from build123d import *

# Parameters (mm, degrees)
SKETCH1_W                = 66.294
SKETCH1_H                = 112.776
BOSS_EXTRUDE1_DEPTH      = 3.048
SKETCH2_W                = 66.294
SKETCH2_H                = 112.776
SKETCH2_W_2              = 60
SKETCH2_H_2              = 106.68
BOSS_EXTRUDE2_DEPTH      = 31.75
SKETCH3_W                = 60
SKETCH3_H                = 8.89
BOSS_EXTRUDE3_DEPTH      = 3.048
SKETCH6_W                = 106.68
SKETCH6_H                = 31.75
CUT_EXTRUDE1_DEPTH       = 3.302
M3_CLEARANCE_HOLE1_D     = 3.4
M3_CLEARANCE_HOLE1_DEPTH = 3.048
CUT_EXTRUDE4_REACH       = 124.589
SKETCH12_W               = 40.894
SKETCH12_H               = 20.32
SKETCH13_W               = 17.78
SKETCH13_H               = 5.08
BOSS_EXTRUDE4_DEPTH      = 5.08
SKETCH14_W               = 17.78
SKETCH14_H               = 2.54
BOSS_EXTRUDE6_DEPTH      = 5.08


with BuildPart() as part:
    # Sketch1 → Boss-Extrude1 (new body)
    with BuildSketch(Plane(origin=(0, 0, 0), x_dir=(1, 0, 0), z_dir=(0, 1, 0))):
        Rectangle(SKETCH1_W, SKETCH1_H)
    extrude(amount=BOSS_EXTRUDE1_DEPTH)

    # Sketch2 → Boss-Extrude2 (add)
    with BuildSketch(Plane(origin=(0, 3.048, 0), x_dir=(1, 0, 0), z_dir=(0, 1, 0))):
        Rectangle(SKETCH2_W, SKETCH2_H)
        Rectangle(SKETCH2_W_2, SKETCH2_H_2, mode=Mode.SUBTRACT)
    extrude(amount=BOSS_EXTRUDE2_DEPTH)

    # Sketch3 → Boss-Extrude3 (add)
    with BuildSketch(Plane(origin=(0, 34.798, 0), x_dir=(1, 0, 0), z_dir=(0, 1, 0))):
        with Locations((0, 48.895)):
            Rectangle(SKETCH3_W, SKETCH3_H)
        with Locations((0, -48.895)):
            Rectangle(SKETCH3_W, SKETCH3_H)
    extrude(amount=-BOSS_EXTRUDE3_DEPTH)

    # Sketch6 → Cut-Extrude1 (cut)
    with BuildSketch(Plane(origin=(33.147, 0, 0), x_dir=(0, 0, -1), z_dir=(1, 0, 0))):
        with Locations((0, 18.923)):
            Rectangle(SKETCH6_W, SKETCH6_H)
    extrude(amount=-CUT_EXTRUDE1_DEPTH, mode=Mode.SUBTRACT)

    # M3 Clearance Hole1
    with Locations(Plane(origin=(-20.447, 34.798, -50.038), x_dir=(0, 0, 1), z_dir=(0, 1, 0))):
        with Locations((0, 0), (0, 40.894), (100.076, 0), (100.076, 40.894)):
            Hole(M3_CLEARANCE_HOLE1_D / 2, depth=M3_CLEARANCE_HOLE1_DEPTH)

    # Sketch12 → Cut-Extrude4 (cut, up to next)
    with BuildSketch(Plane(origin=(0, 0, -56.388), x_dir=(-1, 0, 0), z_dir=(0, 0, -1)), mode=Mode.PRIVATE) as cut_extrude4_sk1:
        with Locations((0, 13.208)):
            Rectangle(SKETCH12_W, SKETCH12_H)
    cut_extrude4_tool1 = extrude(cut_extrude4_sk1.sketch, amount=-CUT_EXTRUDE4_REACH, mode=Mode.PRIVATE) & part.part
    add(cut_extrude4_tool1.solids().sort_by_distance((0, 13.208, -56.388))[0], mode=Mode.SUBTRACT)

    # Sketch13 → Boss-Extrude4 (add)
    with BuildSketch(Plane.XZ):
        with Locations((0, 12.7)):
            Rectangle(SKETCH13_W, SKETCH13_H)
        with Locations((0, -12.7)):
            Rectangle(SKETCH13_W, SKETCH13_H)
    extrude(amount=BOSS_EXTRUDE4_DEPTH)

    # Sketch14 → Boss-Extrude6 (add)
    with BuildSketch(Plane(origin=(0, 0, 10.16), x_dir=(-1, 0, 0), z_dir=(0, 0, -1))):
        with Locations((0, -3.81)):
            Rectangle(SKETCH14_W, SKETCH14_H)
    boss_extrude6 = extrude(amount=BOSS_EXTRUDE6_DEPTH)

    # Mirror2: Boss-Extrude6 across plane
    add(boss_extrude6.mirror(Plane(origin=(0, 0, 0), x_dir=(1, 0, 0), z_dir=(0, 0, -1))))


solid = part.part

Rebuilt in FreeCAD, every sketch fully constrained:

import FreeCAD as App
import Part
import Sketcher

V = App.Vector
Q = App.Units.Quantity


def add_polygon(sketch, points):
    """Adds a closed chain of lines whose ends are joined by coincident constraints."""
    first, n = sketch.GeometryCount, len(points)
    for a, b in zip(points, points[1:] + points[:1]):
        sketch.addGeometry(Part.LineSegment(App.Vector(*a, 0), App.Vector(*b, 0)), False)
    for i in range(n):
        sketch.addConstraint(Sketcher.Constraint("Coincident", first + i, 2, first + (i + 1) % n, 1))

doc = App.newDocument("Part")
body = doc.addObject("PartDesign::Body", "Body")

# Sketch on XZ plane
sketch1 = body.newObject("Sketcher::SketchObject", "Sketch")
sketch1.AttachmentSupport = (doc.getObject("XZ_Plane"), [""])
sketch1.MapMode = "FlatFace"
add_polygon(sketch1, [(-33, -56), (-33, 56), (33, 56), (33, -56)])  # lines 0-3
sketch1.addConstraint(Sketcher.Constraint("Vertical", 0))
sketch1.addConstraint(Sketcher.Constraint("Horizontal", 1))
sketch1.addConstraint(Sketcher.Constraint("Vertical", 2))
sketch1.addConstraint(Sketcher.Constraint("Horizontal", 3))
sketch1.addConstraint(Sketcher.Constraint("Symmetric", 0, 2, 2, 2, -1, 1))
sketch1.addConstraint(Sketcher.Constraint("DistanceX", 1, 1, 1, 2, Q("2.61 in")))
sketch1.addConstraint(Sketcher.Constraint("DistanceY", 0, 1, 0, 2, Q("4.44 in")))
pad1 = body.newObject("PartDesign::Pad", "Pad")
pad1.Profile = sketch1
pad1.Length = Q("0.12 in")
pad1.Reversed = True

# Sketch on XZ plane
sketch2 = body.newObject("Sketcher::SketchObject", "Sketch001")
sketch2.AttachmentSupport = (doc.getObject("XZ_Plane"), [""])
sketch2.MapMode = "FlatFace"
sketch2.AttachmentOffset = App.Placement(V(0, 0, -0.12 * 25.4), App.Rotation())
add_polygon(sketch2, [(-33, -56), (-33, 56), (33, 56), (33, -56)])  # lines 0-3
add_polygon(sketch2, [(30, 53), (-30, 53), (-30, -53), (30, -53)])  # lines 4-7
sketch2.addConstraint(Sketcher.Constraint("Vertical", 0))
sketch2.addConstraint(Sketcher.Constraint("Horizontal", 1))
sketch2.addConstraint(Sketcher.Constraint("Vertical", 2))
sketch2.addConstraint(Sketcher.Constraint("Horizontal", 3))
sketch2.addConstraint(Sketcher.Constraint("Horizontal", 4))
sketch2.addConstraint(Sketcher.Constraint("Vertical", 5))
sketch2.addConstraint(Sketcher.Constraint("Horizontal", 6))
sketch2.addConstraint(Sketcher.Constraint("Vertical", 7))
sketch2.addConstraint(Sketcher.Constraint("Symmetric", 0, 2, 2, 2, -1, 1))
sketch2.addConstraint(Sketcher.Constraint("Symmetric", 4, 2, 6, 2, -1, 1))
sketch2.addConstraint(Sketcher.Constraint("DistanceY", 5, 2, 5, 1, Q("4.2 in")))
sketch2.addConstraint(Sketcher.Constraint("DistanceX", 1, 1, 1, 2, Q("2.61 in")))
sketch2.addConstraint(Sketcher.Constraint("DistanceY", 0, 1, 0, 2, Q("4.44 in")))
sketch2.addConstraint(Sketcher.Constraint("DistanceX", 4, 2, 4, 1, Q("60 mm")))
pad2 = body.newObject("PartDesign::Pad", "Pad001")
pad2.Profile = sketch2
pad2.Length = Q("1.25 in")
pad2.Reversed = True

# Sketch on XZ plane
sketch3 = body.newObject("Sketcher::SketchObject", "Sketch002")
sketch3.AttachmentSupport = (doc.getObject("XZ_Plane"), [""])
sketch3.MapMode = "FlatFace"
sketch3.AttachmentOffset = App.Placement(V(0, 0, -1.37 * 25.4), App.Rotation())
add_polygon(sketch3, [(-30, -53), (-30, -44), (30, -44), (30, -53)])  # lines 0-3
add_polygon(sketch3, [(-30, 44), (-30, 53), (30, 53), (30, 44)])  # lines 4-7
sketch3.addConstraint(Sketcher.Constraint("Vertical", 0))
sketch3.addConstraint(Sketcher.Constraint("Horizontal", 1))
sketch3.addConstraint(Sketcher.Constraint("Vertical", 2))
sketch3.addConstraint(Sketcher.Constraint("Horizontal", 3))
sketch3.addConstraint(Sketcher.Constraint("Vertical", 4))
sketch3.addConstraint(Sketcher.Constraint("Horizontal", 5))
sketch3.addConstraint(Sketcher.Constraint("Vertical", 6))
sketch3.addConstraint(Sketcher.Constraint("Horizontal", 7))
sketch3.addConstraint(Sketcher.Constraint("Symmetric", 2, 2, 4, 2, -1, 1))
sketch3.addConstraint(Sketcher.Constraint("Symmetric", 0, 2, 6, 2, -1, 1))
sketch3.addConstraint(Sketcher.Constraint("Vertical", 3, 2, 4, 2))
sketch3.addConstraint(Sketcher.Constraint("DistanceY", 0, 1, 0, 2, Q("0.35 in")))
sketch3.addConstraint(Sketcher.Constraint("DistanceY", 2, 2, -1, 1, Q("2.1 in")))
sketch3.addConstraint(Sketcher.Constraint("DistanceX", 1, 1, 1, 2, Q("60 mm")))
pad3 = body.newObject("PartDesign::Pad", "Pad002")
pad3.Profile = sketch3
pad3.Length = Q("0.12 in")

# Sketch on YZ plane
sketch4 = body.newObject("Sketcher::SketchObject", "Sketch003")
sketch4.AttachmentSupport = (doc.getObject("YZ_Plane"), [""])
sketch4.MapMode = "FlatFace"
sketch4.AttachmentOffset = App.Placement(V(0, 0, 1.305 * 25.4), App.Rotation())
add_polygon(sketch4, [(35, 53), (3, 53), (3, -53), (35, -53)])  # lines 0-3
sketch4.addConstraint(Sketcher.Constraint("Horizontal", 0))
sketch4.addConstraint(Sketcher.Constraint("Vertical", 1))
sketch4.addConstraint(Sketcher.Constraint("Horizontal", 2))
sketch4.addConstraint(Sketcher.Constraint("Vertical", 3))
sketch4.addConstraint(Sketcher.Constraint("DistanceY", 1, 2, 1, 1, Q("4.2 in")))
sketch4.addConstraint(Sketcher.Constraint("DistanceX", 0, 2, 0, 1, Q("1.25 in")))
sketch4.addConstraint(Sketcher.Constraint("DistanceY", -1, 1, 0, 2, Q("2.1 in")))
sketch4.addConstraint(Sketcher.Constraint("DistanceX", -1, 1, 0, 2, Q("0.12 in")))
pocket1 = body.newObject("PartDesign::Pocket", "Pocket")
pocket1.Profile = sketch4
pocket1.Length = Q("0.13 in")

# Sketch on XZ plane
sketch5 = body.newObject("Sketcher::SketchObject", "Sketch004")
sketch5.AttachmentSupport = (doc.getObject("XZ_Plane"), [""])
sketch5.MapMode = "FlatFace"
sketch5.AttachmentOffset = App.Placement(V(0, 0, -1.37 * 25.4), App.Rotation())
sketch5.addGeometry(Part.Circle(V(-20.4, -50, 0), V(0, 0, 1), 1.7), False)
sketch5.addGeometry(Part.Circle(V(20.4, -50, 0), V(0, 0, 1), 1.7), False)
sketch5.addGeometry(Part.Circle(V(-20.4, 50, 0), V(0, 0, 1), 1.7), False)
sketch5.addGeometry(Part.Circle(V(20.4, 50, 0), V(0, 0, 1), 1.7), False)
sketch5.addConstraint(Sketcher.Constraint("Equal", 0, 1))
sketch5.addConstraint(Sketcher.Constraint("Equal", 1, 2))
sketch5.addConstraint(Sketcher.Constraint("Equal", 2, 3))
sketch5.addConstraint(Sketcher.Constraint("Symmetric", 1, 3, 2, 3, -1, 1))
sketch5.addConstraint(Sketcher.Constraint("Symmetric", 0, 3, 3, 3, -1, 1))
sketch5.addConstraint(Sketcher.Constraint("Symmetric", 0, 3, 1, 3, -2))
sketch5.addConstraint(Sketcher.Constraint("Diameter", 0, Q("3.4 mm")))
sketch5.addConstraint(Sketcher.Constraint("DistanceY", 0, 3, -1, 1, Q("1.97 in")))
sketch5.addConstraint(Sketcher.Constraint("DistanceX", 0, 3, 1, 3, Q("1.61 in")))
doc.recompute()
hole = body.newObject("PartDesign::Hole", "Hole")
hole.Profile = sketch5
hole.ThreadType = "None"
hole.Diameter = 3.4
hole.DepthType = "Dimension"
hole.Depth = Q("0.12 in")
hole.DrillPoint = "Flat"
hole.Reversed = True

# Sketch on XY plane
sketch6 = body.newObject("Sketcher::SketchObject", "Sketch005")
sketch6.AttachmentSupport = (doc.getObject("XY_Plane"), [""])
sketch6.MapMode = "FlatFace"
sketch6.AttachmentOffset = App.Placement(V(0, 0, -2.22 * 25.4), App.Rotation())
add_polygon(sketch6, [(20, 23), (20, 3), (-20, 3), (-20, 23)])  # lines 0-3
sketch6.addConstraint(Sketcher.Constraint("Vertical", 0))
sketch6.addConstraint(Sketcher.Constraint("Horizontal", 1))
sketch6.addConstraint(Sketcher.Constraint("Vertical", 2))
sketch6.addConstraint(Sketcher.Constraint("Horizontal", 3))
sketch6.addConstraint(Sketcher.Constraint("DistanceY", 0, 2, 0, 1, Q("0.8 in")))
sketch6.addConstraint(Sketcher.Constraint("DistanceX", 1, 2, 1, 1, Q("1.61 in")))
sketch6.addConstraint(Sketcher.Constraint("DistanceY", -1, 1, 0, 2, Q("0.12 in")))
sketch6.addConstraint(Sketcher.Constraint("DistanceX", -1, 1, 0, 2, Q("0.805 in")))
pocket2 = body.newObject("PartDesign::Pocket", "Pocket001")
pocket2.Profile = sketch6
pocket2.Type = "UpToFirst"
pocket2.Reversed = True

# Sketch on XZ plane
sketch7 = body.newObject("Sketcher::SketchObject", "Sketch006")
sketch7.AttachmentSupport = (doc.getObject("XZ_Plane"), [""])
sketch7.MapMode = "FlatFace"
add_polygon(sketch7, [(-9, 15), (-9, 10), (9, 10), (9, 15)])  # lines 0-3
add_polygon(sketch7, [(-9, -10), (-9, -15), (9, -15), (9, -10)])  # lines 4-7
sketch7.addConstraint(Sketcher.Constraint("Vertical", 0))
sketch7.addConstraint(Sketcher.Constraint("Horizontal", 1))
sketch7.addConstraint(Sketcher.Constraint("Vertical", 2))
sketch7.addConstraint(Sketcher.Constraint("Horizontal", 3))
sketch7.addConstraint(Sketcher.Constraint("Vertical", 4))
sketch7.addConstraint(Sketcher.Constraint("Horizontal", 5))
sketch7.addConstraint(Sketcher.Constraint("Vertical", 6))
sketch7.addConstraint(Sketcher.Constraint("Horizontal", 7))
sketch7.addConstraint(Sketcher.Constraint("Symmetric", 2, 2, 4, 2, -1, 1))
sketch7.addConstraint(Sketcher.Constraint("Symmetric", 0, 2, 6, 2, -1, 1))
sketch7.addConstraint(Sketcher.Constraint("Vertical", 3, 2, 4, 2))
sketch7.addConstraint(Sketcher.Constraint("DistanceX", 1, 1, 1, 2, Q("0.7 in")))
sketch7.addConstraint(Sketcher.Constraint("DistanceY", 0, 2, 0, 1, Q("0.2 in")))
sketch7.addConstraint(Sketcher.Constraint("DistanceY", 4, 2, 0, 2, Q("1 in")))
pad4 = body.newObject("PartDesign::Pad", "Pad003")
pad4.Profile = sketch7
pad4.Length = Q("0.2 in")

# Sketch on XY plane
sketch8 = body.newObject("Sketcher::SketchObject", "Sketch007")
sketch8.AttachmentSupport = (doc.getObject("XY_Plane"), [""])
sketch8.MapMode = "FlatFace"
sketch8.AttachmentOffset = App.Placement(V(0, 0, 0.4 * 25.4), App.Rotation())
add_polygon(sketch8, [(8.9, -2.5), (8.9, -5.1), (-8.9, -5.1), (-8.9, -2.5)])  # lines 0-3
sketch8.addConstraint(Sketcher.Constraint("Vertical", 0))
sketch8.addConstraint(Sketcher.Constraint("Horizontal", 1))
sketch8.addConstraint(Sketcher.Constraint("Vertical", 2))
sketch8.addConstraint(Sketcher.Constraint("Horizontal", 3))
sketch8.addConstraint(Sketcher.Constraint("DistanceX", 1, 2, 1, 1, Q("0.7 in")))
sketch8.addConstraint(Sketcher.Constraint("DistanceY", 0, 2, 0, 1, Q("0.1 in")))
sketch8.addConstraint(Sketcher.Constraint("DistanceY", 0, 2, -1, 1, Q("0.2 in")))
sketch8.addConstraint(Sketcher.Constraint("DistanceX", -1, 1, 0, 2, Q("0.35 in")))
pad5 = body.newObject("PartDesign::Pad", "Pad004")
pad5.Profile = sketch8
pad5.Length = Q("0.2 in")
pad5.Reversed = True
doc.recompute()

mirrored = body.newObject("PartDesign::Mirrored", "Mirrored")
mirrored.Originals = [pad5]
mirrored.MirrorPlane = (doc.getObject("XY_Plane"), [""])
body.Tip = mirrored

doc.recompute()
